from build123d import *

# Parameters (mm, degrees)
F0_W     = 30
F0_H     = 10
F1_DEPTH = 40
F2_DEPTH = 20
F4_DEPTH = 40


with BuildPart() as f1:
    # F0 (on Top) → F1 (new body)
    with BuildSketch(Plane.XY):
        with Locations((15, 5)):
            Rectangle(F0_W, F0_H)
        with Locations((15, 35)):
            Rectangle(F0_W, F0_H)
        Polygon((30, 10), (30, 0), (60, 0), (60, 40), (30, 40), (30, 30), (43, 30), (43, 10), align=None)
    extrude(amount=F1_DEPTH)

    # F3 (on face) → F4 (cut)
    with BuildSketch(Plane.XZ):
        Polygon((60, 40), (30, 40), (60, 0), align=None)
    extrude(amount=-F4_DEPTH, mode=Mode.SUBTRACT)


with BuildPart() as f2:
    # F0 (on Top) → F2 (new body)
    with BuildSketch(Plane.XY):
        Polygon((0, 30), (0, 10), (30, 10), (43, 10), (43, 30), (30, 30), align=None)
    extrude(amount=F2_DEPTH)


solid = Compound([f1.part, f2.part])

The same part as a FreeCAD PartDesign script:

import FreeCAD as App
import Part
import Sketcher

V = App.Vector


def add_polygon(sketch, points):
    """Adds a closed chain of lines whose ends are joined by coincident constraints."""
    first, n = sketch.GeometryCount, len(points)
    for a, b in zip(points, points[1:] + points[:1]):
        sketch.addGeometry(Part.LineSegment(App.Vector(*a, 0), App.Vector(*b, 0)), False)
    for i in range(n):
        sketch.addConstraint(Sketcher.Constraint("Coincident", first + i, 2, first + (i + 1) % n, 1))

doc = App.newDocument("Part")
body = doc.addObject("PartDesign::Body", "Body")

# Sketch on XY plane
sketch1 = body.newObject("Sketcher::SketchObject", "Sketch")
sketch1.AttachmentSupport = (doc.getObject("XY_Plane"), [""])
sketch1.MapMode = "FlatFace"
add_polygon(sketch1, [(0, 10), (0, 0), (60, 0), (60, 40), (0, 40), (0, 30), (43, 30), (43, 10)])  # lines 0-7
sketch1.addConstraint([
    Sketcher.Constraint("Vertical", 0),
    Sketcher.Constraint("Horizontal", 1),
    Sketcher.Constraint("Vertical", 2),
    Sketcher.Constraint("Horizontal", 3),
    Sketcher.Constraint("Vertical", 4),
    Sketcher.Constraint("Horizontal", 5),
    Sketcher.Constraint("Vertical", 6),
    Sketcher.Constraint("Horizontal", 7),
    Sketcher.Constraint("Coincident", 0, 2, -1, 1),
    Sketcher.Constraint("PointOnObject", 3, 2, -2),
    Sketcher.Constraint("Equal", 0, 4),
    Sketcher.Constraint("DistanceX", 1, 1, 1, 2, 60.0),
    Sketcher.Constraint("DistanceX", 5, 1, 5, 2, 43.0),
    Sketcher.Constraint("DistanceY", 0, 2, 0, 1, 10.0),
    Sketcher.Constraint("DistanceY", 2, 1, 2, 2, 40.0),
])
pad1 = body.newObject("PartDesign::Pad", "Pad")
pad1.Profile = sketch1
pad1.Length = 40

# Sketch on XZ plane
sketch2 = body.newObject("Sketcher::SketchObject", "Sketch001")
sketch2.AttachmentSupport = (doc.getObject("XZ_Plane"), [""])
sketch2.MapMode = "FlatFace"
add_polygon(sketch2, [(60, 40), (30, 40), (60, 0)])  # lines 0-2
sketch2.addConstraint([
    Sketcher.Constraint("Horizontal", 0),
    Sketcher.Constraint("Vertical", 2),
    Sketcher.Constraint("PointOnObject", 1, 2, -1),
    Sketcher.Constraint("DistanceX", 0, 2, 0, 1, 30.0),
    Sketcher.Constraint("DistanceY", 2, 1, 2, 2, 40.0),
    Sketcher.Constraint("DistanceX", -1, 1, 0, 2, 30.0),
])
pocket1 = body.newObject("PartDesign::Pocket", "Pocket")
pocket1.Profile = sketch2
pocket1.Length = 40
body2 = doc.addObject("PartDesign::Body", "Body001")

# Sketch on XY plane
sketch3 = body2.newObject("Sketcher::SketchObject", "Sketch002")
sketch3.AttachmentSupport = (doc.getObject("XY_Plane001"), [""])
sketch3.MapMode = "FlatFace"
add_polygon(sketch3, [(0, 30), (0, 10), (43, 10), (43, 30)])  # lines 0-3
sketch3.addConstraint([
    Sketcher.Constraint("Vertical", 0),
    Sketcher.Constraint("Horizontal", 1),
    Sketcher.Constraint("Vertical", 2),
    Sketcher.Constraint("Horizontal", 3),
    Sketcher.Constraint("PointOnObject", 0, 2, -2),
    Sketcher.Constraint("DistanceX", 1, 1, 1, 2, 43.0),
    Sketcher.Constraint("DistanceY", 0, 2, 0, 1, 20.0),
    Sketcher.Constraint("DistanceY", -1, 1, 0, 2, 10.0),
])
pad2 = body2.newObject("PartDesign::Pad", "Pad001")
pad2.Profile = sketch3
pad2.Length = 20

doc.recompute()
